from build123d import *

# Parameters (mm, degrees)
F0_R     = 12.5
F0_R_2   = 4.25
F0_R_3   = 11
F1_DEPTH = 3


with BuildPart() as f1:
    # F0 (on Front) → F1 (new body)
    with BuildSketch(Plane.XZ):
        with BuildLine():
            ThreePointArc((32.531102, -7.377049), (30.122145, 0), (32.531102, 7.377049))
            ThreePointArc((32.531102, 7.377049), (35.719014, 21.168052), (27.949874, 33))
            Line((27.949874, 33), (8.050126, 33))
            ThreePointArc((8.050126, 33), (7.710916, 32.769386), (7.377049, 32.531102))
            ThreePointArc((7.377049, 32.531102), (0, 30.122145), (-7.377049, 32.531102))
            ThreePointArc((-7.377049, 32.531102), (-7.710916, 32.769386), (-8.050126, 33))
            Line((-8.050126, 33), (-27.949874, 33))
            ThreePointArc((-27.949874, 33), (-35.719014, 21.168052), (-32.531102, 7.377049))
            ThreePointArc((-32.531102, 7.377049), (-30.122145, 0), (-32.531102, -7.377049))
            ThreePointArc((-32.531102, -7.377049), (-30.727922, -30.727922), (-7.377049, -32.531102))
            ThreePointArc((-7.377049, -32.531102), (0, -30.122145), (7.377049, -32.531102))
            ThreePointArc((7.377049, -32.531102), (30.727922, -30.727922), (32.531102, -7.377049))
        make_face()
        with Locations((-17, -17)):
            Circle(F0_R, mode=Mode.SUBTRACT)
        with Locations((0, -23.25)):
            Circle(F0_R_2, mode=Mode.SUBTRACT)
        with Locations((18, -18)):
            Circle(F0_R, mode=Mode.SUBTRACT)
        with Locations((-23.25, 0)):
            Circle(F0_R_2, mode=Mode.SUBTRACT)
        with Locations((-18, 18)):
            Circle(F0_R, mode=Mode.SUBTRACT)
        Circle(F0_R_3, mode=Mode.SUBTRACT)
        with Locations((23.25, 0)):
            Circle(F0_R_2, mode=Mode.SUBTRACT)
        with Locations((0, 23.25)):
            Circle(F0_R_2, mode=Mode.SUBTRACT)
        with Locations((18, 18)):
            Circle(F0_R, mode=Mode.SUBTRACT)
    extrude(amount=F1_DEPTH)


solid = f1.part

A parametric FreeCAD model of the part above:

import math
import FreeCAD as App
import Part
import Sketcher

V = App.Vector
Q = App.Units.Quantity

doc = App.newDocument("Part")
body = doc.addObject("PartDesign::Body", "Body")

sketch1 = body.newObject("Sketcher::SketchObject", "Sketch")
sketch1.AttachmentSupport = (doc.getObject("XZ_Plane"), [""])
sketch1.MapMode = "FlatFace"
sketch1.addGeometry(Part.ArcOfCircle(Part.Circle(V(42.6, 0, 0), V(0, 0, 1), 12.5), math.radians(144), math.radians(216)), False)
sketch1.addGeometry(Part.ArcOfCircle(Part.Circle(V(18, 18, 0), V(0, 0, 1), 18), math.radians(-36), math.radians(56)), False)
sketch1.addGeometry(Part.LineSegment(V(27.9, 33, 0), V(8.1, 33, 0)), False)
sketch1.addGeometry(Part.ArcOfCircle(Part.Circle(V(18, 18, 0), V(0, 0, 1), 18), math.radians(123.56), math.radians(126.17)), False)
sketch1.addGeometry(Part.ArcOfCircle(Part.Circle(V(0, 42.6, 0), V(0, 0, 1), 12.5), math.radians(-126), math.radians(-54)), False)
sketch1.addGeometry(Part.ArcOfCircle(Part.Circle(V(-18, 18, 0), V(0, 0, 1), 18), math.radians(53.83), math.radians(56.44)), False)
sketch1.addGeometry(Part.LineSegment(V(-8.1, 33, 0), V(-27.9, 33, 0)), False)
sketch1.addGeometry(Part.ArcOfCircle(Part.Circle(V(-18, 18, 0), V(0, 0, 1), 18), math.radians(124), math.radians(216)), False)
sketch1.addGeometry(Part.ArcOfCircle(Part.Circle(V(-42.6, 0, 0), V(0, 0, 1), 12.5), math.radians(-36), math.radians(36)), False)
sketch1.addGeometry(Part.ArcOfCircle(Part.Circle(V(-18, -18, 0), V(0, 0, 1), 18), math.radians(144), math.radians(306)), False)
sketch1.addGeometry(Part.ArcOfCircle(Part.Circle(V(0, -42.6, 0), V(0, 0, 1), 12.5), math.radians(54), math.radians(126)), False)
sketch1.addGeometry(Part.ArcOfCircle(Part.Circle(V(18, -18, 0), V(0, 0, 1), 18), math.radians(-126), math.radians(36)), False)
sketch1.addGeometry(Part.Circle(V(-17, -17, 0), V(0, 0, 1), 12.5), False)
sketch1.addGeometry(Part.Circle(V(0, -23.2, 0), V(0, 0, 1), 4.2), False)
sketch1.addGeometry(Part.Circle(V(18, -18, 0), V(0, 0, 1), 12.5), False)
sketch1.addGeometry(Part.Circle(V(-23.2, 0, 0), V(0, 0, 1), 4.2), False)
sketch1.addGeometry(Part.Circle(V(-18, 18, 0), V(0, 0, 1), 12.5), False)
sketch1.addGeometry(Part.Circle(V(0, 0, 0), V(0, 0, 1), 11), False)
sketch1.addGeometry(Part.Circle(V(23.2, 0, 0), V(0, 0, 1), 4.2), False)
sketch1.addGeometry(Part.Circle(V(0, 23.2, 0), V(0, 0, 1), 4.2), False)
sketch1.addGeometry(Part.Circle(V(18, 18, 0), V(0, 0, 1), 12.5), False)
sketch1.addConstraint(Sketcher.Constraint("Tangent", 0, 1, 1, 1))
sketch1.addConstraint(Sketcher.Constraint("Coincident", 1, 2, 2, 1))
sketch1.addConstraint(Sketcher.Constraint("Coincident", 2, 2, 3, 1))
sketch1.addConstraint(Sketcher.Constraint("Tangent", 3, 2, 4, 2))
sketch1.addConstraint(Sketcher.Constraint("Tangent", 4, 1, 5, 1))
sketch1.addConstraint(Sketcher.Constraint("Coincident", 5, 2, 6, 1))
sketch1.addConstraint(Sketcher.Constraint("Coincident", 6, 2, 7, 1))
sketch1.addConstraint(Sketcher.Constraint("Tangent", 7, 2, 8, 2))
sketch1.addConstraint(Sketcher.Constraint("Tangent", 8, 1, 9, 1))
sketch1.addConstraint(Sketcher.Constraint("Tangent", 9, 2, 10, 2))
sketch1.addConstraint(Sketcher.Constraint("Tangent", 10, 1, 11, 1))
sketch1.addConstraint(Sketcher.Constraint("Tangent", 11, 2, 0, 2))
sketch1.addConstraint(Sketcher.Constraint("Horizontal", 2))
sketch1.addConstraint(Sketcher.Constraint("Horizontal", 6))
sketch1.addConstraint(Sketcher.Constraint("Coincident", 17, 3, -1, 1))
sketch1.addConstraint(Sketcher.Constraint("Coincident", 14, 3, 11, 3))
sketch1.addConstraint(Sketcher.Constraint("Coincident", 16, 3, 7, 3))
sketch1.addConstraint(Sketcher.Constraint("Coincident", 20, 3, 1, 3))
sketch1.addConstraint(Sketcher.Constraint("Equal", 0, 4))
sketch1.addConstraint(Sketcher.Constraint("Equal", 3, 5))
sketch1.addConstraint(Sketcher.Constraint("Equal", 1, 7))
sketch1.addConstraint(Sketcher.Constraint("Equal", 4, 8))
sketch1.addConstraint(Sketcher.Constraint("Equal", 7, 9))
sketch1.addConstraint(Sketcher.Constraint("Equal", 8, 10))
sketch1.addConstraint(Sketcher.Constraint("Equal", 9, 11))
sketch1.addConstraint(Sketcher.Constraint("Equal", 10, 12))
sketch1.addConstraint(Sketcher.Constraint("Equal", 12, 14))
sketch1.addConstraint(Sketcher.Constraint("Equal", 13, 15))
sketch1.addConstraint(Sketcher.Constraint("Equal", 14, 16))
sketch1.addConstraint(Sketcher.Constraint("Equal", 15, 18))
sketch1.addConstraint(Sketcher.Constraint("Equal", 18, 19))
sketch1.addConstraint(Sketcher.Constraint("Equal", 16, 20))
sketch1.addConstraint(Sketcher.Constraint("Symmetric", 0, 3, 8, 3, -1, 1))
sketch1.addConstraint(Sketcher.Constraint("Symmetric", 4, 3, 10, 3, -1, 1))
sketch1.addConstraint(Sketcher.Constraint("Symmetric", 15, 3, 18, 3, -1, 1))
sketch1.addConstraint(Sketcher.Constraint("Symmetric", 13, 3, 19, 3, -1, 1))
sketch1.addConstraint(Sketcher.Constraint("Symmetric", 3, 3, 5, 3, -2))
sketch1.addConstraint(Sketcher.Constraint("Symmetric", 1, 3, 7, 3, -2))
sketch1.addConstraint(Sketcher.Constraint("PointOnObject", 13, 3, -2))
sketch1.addConstraint(Sketcher.Constraint("PointOnObject", 15, 3, -1))
sketch1.addConstraint(Sketcher.Constraint("Horizontal", 2, 2, 5, 2))
sketch1.addConstraint(Sketcher.Constraint("Vertical", 7, 3, 9, 3))
sketch1.addConstraint(Sketcher.Constraint("Vertical", 4, 1, 9, 2))
sketch1.addConstraint(Sketcher.Constraint("Diameter", 12, Q("25 mm")))
sketch1.addConstraint(Sketcher.Constraint("Diameter", 17, Q("22 mm")))
sketch1.addConstraint(Sketcher.Constraint("Radius", 1, Q("18 mm")))
sketch1.addConstraint(Sketcher.Constraint("Diameter", 13, Q("8.5 mm")))
sketch1.addConstraint(Sketcher.Constraint("DistanceX", -1, 1, 1, 3, Q("18.000001 mm")))
sketch1.addConstraint(Sketcher.Constraint("DistanceY", -1, 1, 1, 3, Q("18 mm")))
sketch1.addConstraint(Sketcher.Constraint("DistanceX", 12, 3, -1, 1, Q("17 mm")))
sketch1.addConstraint(Sketcher.Constraint("DistanceY", 12, 3, -1, 1, Q("17 mm")))
sketch1.addConstraint(Sketcher.Constraint("DistanceY", -1, 1, 1, 2, Q("33 mm")))
sketch1.addConstraint(Sketcher.Constraint("DistanceY", 13, 3, -1, 1, Q("23.25 mm")))
sketch1.addConstraint(Sketcher.Constraint("DistanceX", 15, 3, -1, 1, Q("23.25 mm")))
sketch1.addConstraint(Sketcher.Constraint("Radius", 3, Q("17.998992 mm")))
pad1 = body.newObject("PartDesign::Pad", "Pad")
pad1.Profile = sketch1
pad1.Length = 3

doc.recompute()
